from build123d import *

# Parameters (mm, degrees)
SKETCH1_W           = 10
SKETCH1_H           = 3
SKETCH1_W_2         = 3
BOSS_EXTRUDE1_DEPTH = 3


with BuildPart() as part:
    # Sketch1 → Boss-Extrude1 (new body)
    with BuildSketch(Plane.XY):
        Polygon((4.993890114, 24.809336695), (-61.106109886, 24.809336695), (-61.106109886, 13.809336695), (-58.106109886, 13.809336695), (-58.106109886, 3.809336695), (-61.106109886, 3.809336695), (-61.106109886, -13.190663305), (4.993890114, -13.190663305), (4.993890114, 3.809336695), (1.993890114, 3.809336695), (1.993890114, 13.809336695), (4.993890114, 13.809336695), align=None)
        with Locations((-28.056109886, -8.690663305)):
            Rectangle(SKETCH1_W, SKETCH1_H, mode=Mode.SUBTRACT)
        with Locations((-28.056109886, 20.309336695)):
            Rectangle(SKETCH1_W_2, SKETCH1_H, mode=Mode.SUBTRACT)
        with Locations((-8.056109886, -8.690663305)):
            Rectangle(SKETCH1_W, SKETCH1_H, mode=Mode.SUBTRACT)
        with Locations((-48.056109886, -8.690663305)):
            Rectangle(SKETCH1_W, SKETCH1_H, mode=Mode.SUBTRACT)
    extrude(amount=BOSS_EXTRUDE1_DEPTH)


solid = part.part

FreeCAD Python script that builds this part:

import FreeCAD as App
import Part
import Sketcher
from FreeCAD import Vector

doc = App.newDocument("Part")
body = doc.addObject("PartDesign::Body", "Body")

# Sketch on XY plane
sketch1 = body.newObject("Sketcher::SketchObject", "Sketch")
sketch1.AttachmentSupport = (doc.getObject("XY_Plane"), [""])
sketch1.MapMode = "FlatFace"
sketch1.addGeometry([
    Part.LineSegment(Vector(5, 24.8, 0), Vector(-61.1, 24.8, 0)),  # 0
    Part.LineSegment(Vector(-61.1, 24.8, 0), Vector(-61.1, 13.8, 0)),  # 1
    Part.LineSegment(Vector(-61.1, 13.8, 0), Vector(-58.1, 13.8, 0)),  # 2
    Part.LineSegment(Vector(-58.1, 13.8, 0), Vector(-58.1, 3.8, 0)),  # 3
    Part.LineSegment(Vector(-58.1, 3.8, 0), Vector(-61.1, 3.8, 0)),  # 4
    Part.LineSegment(Vector(-61.1, 3.8, 0), Vector(-61.1, -13.2, 0)),  # 5
    Part.LineSegment(Vector(-61.1, -13.2, 0), Vector(5, -13.2, 0)),  # 6
    Part.LineSegment(Vector(5, -13.2, 0), Vector(5, 3.8, 0)),  # 7
    Part.LineSegment(Vector(5, 3.8, 0), Vector(2, 3.8, 0)),  # 8
    Part.LineSegment(Vector(2, 3.8, 0), Vector(2, 13.8, 0)),  # 9
    Part.LineSegment(Vector(2, 13.8, 0), Vector(5, 13.8, 0)),  # 10
    Part.LineSegment(Vector(5, 13.8, 0), Vector(5, 24.8, 0)),  # 11
    Part.LineSegment(Vector(-43.1, -10.2, 0), Vector(-53.1, -10.2, 0)),  # 12
    Part.LineSegment(Vector(-53.1, -10.2, 0), Vector(-53.1, -7.2, 0)),  # 13
    Part.LineSegment(Vector(-53.1, -7.2, 0), Vector(-43.1, -7.2, 0)),  # 14
    Part.LineSegment(Vector(-43.1, -7.2, 0), Vector(-43.1, -10.2, 0)),  # 15
    Part.LineSegment(Vector(-23.1, -10.2, 0), Vector(-33.1, -10.2, 0)),  # 16
    Part.LineSegment(Vector(-33.1, -10.2, 0), Vector(-33.1, -7.2, 0)),  # 17
    Part.LineSegment(Vector(-33.1, -7.2, 0), Vector(-23.1, -7.2, 0)),  # 18
    Part.LineSegment(Vector(-23.1, -7.2, 0), Vector(-23.1, -10.2, 0)),  # 19
    Part.LineSegment(Vector(-3.1, -10.2, 0), Vector(-13.1, -10.2, 0)),  # 20
    Part.LineSegment(Vector(-13.1, -10.2, 0), Vector(-13.1, -7.2, 0)),  # 21
    Part.LineSegment(Vector(-13.1, -7.2, 0), Vector(-3.1, -7.2, 0)),  # 22
    Part.LineSegment(Vector(-3.1, -7.2, 0), Vector(-3.1, -10.2, 0)),  # 23
    Part.LineSegment(Vector(-26.6, 18.8, 0), Vector(-29.6, 18.8, 0)),  # 24
    Part.LineSegment(Vector(-29.6, 18.8, 0), Vector(-29.6, 21.8, 0)),  # 25
    Part.LineSegment(Vector(-29.6, 21.8, 0), Vector(-26.6, 21.8, 0)),  # 26
    Part.LineSegment(Vector(-26.6, 21.8, 0), Vector(-26.6, 18.8, 0)),  # 27
], False)
sketch1.addConstraint([
    Sketcher.Constraint("Coincident", 0, 2, 1, 1),
    Sketcher.Constraint("Coincident", 1, 2, 2, 1),
    Sketcher.Constraint("Coincident", 2, 2, 3, 1),
    Sketcher.Constraint("Coincident", 3, 2, 4, 1),
    Sketcher.Constraint("Coincident", 4, 2, 5, 1),
    Sketcher.Constraint("Coincident", 5, 2, 6, 1),
    Sketcher.Constraint("Coincident", 6, 2, 7, 1),
    Sketcher.Constraint("Coincident", 7, 2, 8, 1),
    Sketcher.Constraint("Coincident", 8, 2, 9, 1),
    Sketcher.Constraint("Coincident", 9, 2, 10, 1),
    Sketcher.Constraint("Coincident", 10, 2, 11, 1),
    Sketcher.Constraint("Coincident", 11, 2, 0, 1),
    Sketcher.Constraint("Coincident", 12, 2, 13, 1),
    Sketcher.Constraint("Coincident", 13, 2, 14, 1),
    Sketcher.Constraint("Coincident", 14, 2, 15, 1),
    Sketcher.Constraint("Coincident", 15, 2, 12, 1),
    Sketcher.Constraint("Coincident", 16, 2, 17, 1),
    Sketcher.Constraint("Coincident", 17, 2, 18, 1),
    Sketcher.Constraint("Coincident", 18, 2, 19, 1),
    Sketcher.Constraint("Coincident", 19, 2, 16, 1),
    Sketcher.Constraint("Coincident", 20, 2, 21, 1),
    Sketcher.Constraint("Coincident", 21, 2, 22, 1),
    Sketcher.Constraint("Coincident", 22, 2, 23, 1),
    Sketcher.Constraint("Coincident", 23, 2, 20, 1),
    Sketcher.Constraint("Coincident", 24, 2, 25, 1),
    Sketcher.Constraint("Coincident", 25, 2, 26, 1),
    Sketcher.Constraint("Coincident", 26, 2, 27, 1),
    Sketcher.Constraint("Coincident", 27, 2, 24, 1),
    Sketcher.Constraint("Horizontal", 0),
    Sketcher.Constraint("Vertical", 1),
    Sketcher.Constraint("Horizontal", 2),
    Sketcher.Constraint("Vertical", 3),
    Sketcher.Constraint("Horizontal", 4),
    Sketcher.Constraint("Vertical", 5),
    Sketcher.Constraint("Horizontal", 6),
    Sketcher.Constraint("Vertical", 7),
    Sketcher.Constraint("Horizontal", 8),
    Sketcher.Constraint("Vertical", 9),
    Sketcher.Constraint("Horizontal", 10),
    Sketcher.Constraint("Vertical", 11),
    Sketcher.Constraint("Horizontal", 12),
    Sketcher.Constraint("Vertical", 13),
    Sketcher.Constraint("Horizontal", 14),
    Sketcher.Constraint("Vertical", 15),
    Sketcher.Constraint("Horizontal", 16),
    Sketcher.Constraint("Vertical", 17),
    Sketcher.Constraint("Horizontal", 18),
    Sketcher.Constraint("Vertical", 19),
    Sketcher.Constraint("Horizontal", 20),
    Sketcher.Constraint("Vertical", 21),
    Sketcher.Constraint("Horizontal", 22),
    Sketcher.Constraint("Vertical", 23),
    Sketcher.Constraint("Horizontal", 24),
    Sketcher.Constraint("Vertical", 25),
    Sketcher.Constraint("Horizontal", 26),
    Sketcher.Constraint("Vertical", 27),
    Sketcher.Constraint("Horizontal", 4, 2, 7, 2),
    Sketcher.Constraint("Horizontal", 2, 2, 9, 2),
    Sketcher.Constraint("Horizontal", 15, 2, 16, 2),
    Sketcher.Constraint("Horizontal", 14, 2, 17, 2),
    Sketcher.Constraint("Horizontal", 19, 2, 20, 2),
    Sketcher.Constraint("Horizontal", 18, 2, 21, 2),
    Sketcher.Constraint("Vertical", 1, 2, 4, 2),
    Sketcher.Constraint("Vertical", 7, 2, 10, 2),
    Sketcher.Constraint("Equal", 4, 8),
    Sketcher.Constraint("Equal", 14, 16),
    Sketcher.Constraint("Equal", 18, 20),
    Sketcher.Constraint("Equal", 10, 24),
    Sketcher.Constraint("Equal", 22, 3),
    Sketcher.Constraint("Equal", 26, 13),
    Sketcher.Constraint("Equal", 23, 25),
    Sketcher.Constraint("DistanceX", 2, 1, 2, 2, 3.0),
    Sketcher.Constraint("DistanceX", 12, 2, 12, 1, 10.0),
    Sketcher.Constraint("DistanceY", 1, 2, 1, 1, 11.0),
    Sketcher.Constraint("DistanceY", 5, 2, 5, 1, 17.0),
    Sketcher.Constraint("DistanceX", 0, 2, 0, 1, 66.1),
    Sketcher.Constraint("DistanceY", 5, 2, 12, 2, 3.0),
    Sketcher.Constraint("DistanceX", 15, 2, 16, 2, 10.0),
    Sketcher.Constraint("DistanceX", 19, 2, 20, 2, 10.0),
    Sketcher.Constraint("DistanceY", 17, 2, 24, 2, 26.0),
    Sketcher.Constraint("DistanceX", 17, 2, 24, 2, 3.5),
    Sketcher.Constraint("DistanceX", 5, 2, 12, 2, 8.05),
    Sketcher.Constraint("DistanceX", 0, 2, -1, 1, 61.10611),
    Sketcher.Constraint("DistanceY", -1, 1, 0, 2, 24.809337),
])
pad1 = body.newObject("PartDesign::Pad", "Pad")
pad1.Profile = sketch1
pad1.Length = 3

doc.recompute()
